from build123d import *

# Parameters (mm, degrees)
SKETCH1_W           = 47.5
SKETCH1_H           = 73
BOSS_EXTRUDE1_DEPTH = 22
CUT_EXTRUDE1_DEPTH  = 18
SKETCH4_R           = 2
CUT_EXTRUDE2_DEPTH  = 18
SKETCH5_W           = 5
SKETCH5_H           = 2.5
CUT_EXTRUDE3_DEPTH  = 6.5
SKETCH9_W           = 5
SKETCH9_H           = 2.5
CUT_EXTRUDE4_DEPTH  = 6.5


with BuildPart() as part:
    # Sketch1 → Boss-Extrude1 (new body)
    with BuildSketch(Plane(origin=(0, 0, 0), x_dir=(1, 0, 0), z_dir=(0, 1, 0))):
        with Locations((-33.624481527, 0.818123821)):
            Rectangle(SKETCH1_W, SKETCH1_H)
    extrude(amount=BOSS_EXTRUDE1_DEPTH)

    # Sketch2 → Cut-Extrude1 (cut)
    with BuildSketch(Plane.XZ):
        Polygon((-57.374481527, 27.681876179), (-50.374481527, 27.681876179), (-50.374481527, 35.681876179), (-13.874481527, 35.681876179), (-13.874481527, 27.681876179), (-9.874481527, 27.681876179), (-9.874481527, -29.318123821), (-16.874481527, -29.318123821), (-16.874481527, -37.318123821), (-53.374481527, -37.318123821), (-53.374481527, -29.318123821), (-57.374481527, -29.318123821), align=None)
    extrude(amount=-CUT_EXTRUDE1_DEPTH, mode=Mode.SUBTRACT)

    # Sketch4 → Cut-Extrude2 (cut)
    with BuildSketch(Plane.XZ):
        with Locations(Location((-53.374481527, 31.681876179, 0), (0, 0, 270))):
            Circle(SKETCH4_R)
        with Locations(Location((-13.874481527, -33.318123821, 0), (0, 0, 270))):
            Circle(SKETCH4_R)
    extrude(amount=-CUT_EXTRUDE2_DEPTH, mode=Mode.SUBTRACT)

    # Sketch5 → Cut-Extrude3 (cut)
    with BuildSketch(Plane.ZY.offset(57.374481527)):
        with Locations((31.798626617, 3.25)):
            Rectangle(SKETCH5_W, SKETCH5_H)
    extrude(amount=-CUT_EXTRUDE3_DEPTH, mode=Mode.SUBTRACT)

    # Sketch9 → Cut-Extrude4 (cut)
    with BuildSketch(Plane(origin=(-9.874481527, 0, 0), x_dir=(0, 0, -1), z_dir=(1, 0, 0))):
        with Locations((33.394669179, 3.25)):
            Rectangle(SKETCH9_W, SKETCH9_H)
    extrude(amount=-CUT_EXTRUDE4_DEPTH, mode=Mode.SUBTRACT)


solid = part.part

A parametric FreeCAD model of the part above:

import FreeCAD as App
import Part
import Sketcher
from FreeCAD import Vector
Q = App.Units.Quantity

doc = App.newDocument("Part")
body = doc.addObject("PartDesign::Body", "Body")

sketch1 = body.newObject("Sketcher::SketchObject", "Sketch")
sketch1.AttachmentSupport = (doc.getObject("XZ_Plane"), [""])
sketch1.MapMode = "FlatFace"
sketch1.addGeometry(Part.LineSegment(Vector(-57, -37, 0), Vector(-57, 36, 0)), False)
sketch1.addGeometry(Part.LineSegment(Vector(-57, 36, 0), Vector(-10, 36, 0)), False)
sketch1.addGeometry(Part.LineSegment(Vector(-10, 36, 0), Vector(-10, -37, 0)), False)
sketch1.addGeometry(Part.LineSegment(Vector(-10, -37, 0), Vector(-57, -37, 0)), False)
sketch1.addConstraint(Sketcher.Constraint("Coincident", 0, 2, 1, 1))
sketch1.addConstraint(Sketcher.Constraint("Coincident", 1, 2, 2, 1))
sketch1.addConstraint(Sketcher.Constraint("Coincident", 2, 2, 3, 1))
sketch1.addConstraint(Sketcher.Constraint("Coincident", 3, 2, 0, 1))
sketch1.addConstraint(Sketcher.Constraint("Vertical", 0))
sketch1.addConstraint(Sketcher.Constraint("Horizontal", 1))
sketch1.addConstraint(Sketcher.Constraint("Vertical", 2))
sketch1.addConstraint(Sketcher.Constraint("Horizontal", 3))
sketch1.addConstraint(Sketcher.Constraint("DistanceY", 0, 1, 0, 2, Q("73 mm")))
sketch1.addConstraint(Sketcher.Constraint("DistanceX", 1, 1, 1, 2, Q("47.5 mm")))
sketch1.addConstraint(Sketcher.Constraint("DistanceX", 0, 2, -1, 1, Q("57.374482 mm")))
sketch1.addConstraint(Sketcher.Constraint("DistanceY", -1, 1, 0, 2, Q("35.681876 mm")))
pad1 = body.newObject("PartDesign::Pad", "Pad")
pad1.Profile = sketch1
pad1.Length = 22
pad1.Reversed = True

sketch2 = body.newObject("Sketcher::SketchObject", "Sketch001")
sketch2.AttachmentSupport = (doc.getObject("XZ_Plane"), [""])
sketch2.MapMode = "FlatFace"
sketch2.addGeometry(Part.LineSegment(Vector(-50.4, 27.7, 0), Vector(-57.4, 27.7, 0)), False)
sketch2.addGeometry(Part.LineSegment(Vector(-57.4, 27.7, 0), Vector(-57.4, -29.3, 0)), False)
sketch2.addGeometry(Part.LineSegment(Vector(-57.4, -29.3, 0), Vector(-53.4, -29.3, 0)), False)
sketch2.addGeometry(Part.LineSegment(Vector(-53.4, -29.3, 0), Vector(-53.4, -37.3, 0)), False)
sketch2.addGeometry(Part.LineSegment(Vector(-53.4, -37.3, 0), Vector(-16.9, -37.3, 0)), False)
sketch2.addGeometry(Part.LineSegment(Vector(-16.9, -37.3, 0), Vector(-16.9, -29.3, 0)), False)
sketch2.addGeometry(Part.LineSegment(Vector(-16.9, -29.3, 0), Vector(-9.9, -29.3, 0)), False)
sketch2.addGeometry(Part.LineSegment(Vector(-9.9, -29.3, 0), Vector(-9.9, 27.7, 0)), False)
sketch2.addGeometry(Part.LineSegment(Vector(-9.9, 27.7, 0), Vector(-13.9, 27.7, 0)), False)
sketch2.addGeometry(Part.LineSegment(Vector(-13.9, 27.7, 0), Vector(-13.9, 35.7, 0)), False)
sketch2.addGeometry(Part.LineSegment(Vector(-13.9, 35.7, 0), Vector(-50.4, 35.7, 0)), False)
sketch2.addGeometry(Part.LineSegment(Vector(-50.4, 35.7, 0), Vector(-50.4, 27.7, 0)), False)
sketch2.addConstraint(Sketcher.Constraint("Coincident", 0, 2, 1, 1))
sketch2.addConstraint(Sketcher.Constraint("Coincident", 1, 2, 2, 1))
sketch2.addConstraint(Sketcher.Constraint("Coincident", 2, 2, 3, 1))
sketch2.addConstraint(Sketcher.Constraint("Coincident", 3, 2, 4, 1))
sketch2.addConstraint(Sketcher.Constraint("Coincident", 4, 2, 5, 1))
sketch2.addConstraint(Sketcher.Constraint("Coincident", 5, 2, 6, 1))
sketch2.addConstraint(Sketcher.Constraint("Coincident", 6, 2, 7, 1))
sketch2.addConstraint(Sketcher.Constraint("Coincident", 7, 2, 8, 1))
sketch2.addConstraint(Sketcher.Constraint("Coincident", 8, 2, 9, 1))
sketch2.addConstraint(Sketcher.Constraint("Coincident", 9, 2, 10, 1))
sketch2.addConstraint(Sketcher.Constraint("Coincident", 10, 2, 11, 1))
sketch2.addConstraint(Sketcher.Constraint("Coincident", 11, 2, 0, 1))
sketch2.addConstraint(Sketcher.Constraint("Horizontal", 0))
sketch2.addConstraint(Sketcher.Constraint("Vertical", 1))
sketch2.addConstraint(Sketcher.Constraint("Horizontal", 2))
sketch2.addConstraint(Sketcher.Constraint("Vertical", 3))
sketch2.addConstraint(Sketcher.Constraint("Horizontal", 4))
sketch2.addConstraint(Sketcher.Constraint("Vertical", 5))
sketch2.addConstraint(Sketcher.Constraint("Horizontal", 6))
sketch2.addConstraint(Sketcher.Constraint("Vertical", 7))
sketch2.addConstraint(Sketcher.Constraint("Horizontal", 8))
sketch2.addConstraint(Sketcher.Constraint("Vertical", 9))
sketch2.addConstraint(Sketcher.Constraint("Horizontal", 10))
sketch2.addConstraint(Sketcher.Constraint("Vertical", 11))
sketch2.addConstraint(Sketcher.Constraint("Horizontal", 2, 2, 5, 2))
sketch2.addConstraint(Sketcher.Constraint("Horizontal", 0, 2, 7, 2))
sketch2.addConstraint(Sketcher.Constraint("Equal", 0, 6))
sketch2.addConstraint(Sketcher.Constraint("Equal", 2, 8))
sketch2.addConstraint(Sketcher.Constraint("Equal", 5, 9))
sketch2.addConstraint(Sketcher.Constraint("DistanceX", 0, 2, 0, 1, Q("7 mm")))
sketch2.addConstraint(Sketcher.Constraint("DistanceX", 2, 1, 2, 2, Q("4 mm")))
sketch2.addConstraint(Sketcher.Constraint("DistanceY", 1, 2, 1, 1, Q("57 mm")))
sketch2.addConstraint(Sketcher.Constraint("DistanceY", 3, 2, 3, 1, Q("8 mm")))
sketch2.addConstraint(Sketcher.Constraint("DistanceX", 4, 1, 4, 2, Q("36.5 mm")))
sketch2.addConstraint(Sketcher.Constraint("DistanceX", 0, 2, -1, 1, Q("57.374482 mm")))
sketch2.addConstraint(Sketcher.Constraint("DistanceY", -1, 1, 0, 2, Q("27.681876 mm")))
pocket1 = body.newObject("PartDesign::Pocket", "Pocket")
pocket1.Profile = sketch2
pocket1.Length = 18

sketch3 = body.newObject("Sketcher::SketchObject", "Sketch002")
sketch3.AttachmentSupport = (doc.getObject("XZ_Plane"), [""])
sketch3.MapMode = "FlatFace"
sketch3.addGeometry(Part.Circle(Vector(-53.4, 31.7, 0), Vector(0, 0, 1), 2), False)
sketch3.addGeometry(Part.Circle(Vector(-13.9, -33.3, 0), Vector(0, 0, 1), 2), False)
sketch3.addConstraint(Sketcher.Constraint("Equal", 0, 1))
sketch3.addConstraint(Sketcher.Constraint("Diameter", 0, Q("4 mm")))
sketch3.addConstraint(Sketcher.Constraint("DistanceY", 1, 3, 0, 3, Q("65 mm")))
sketch3.addConstraint(Sketcher.Constraint("DistanceX", 0, 3, 1, 3, Q("39.5 mm")))
sketch3.addConstraint(Sketcher.Constraint("DistanceX", 0, 3, -1, 1, Q("53.374482 mm")))
sketch3.addConstraint(Sketcher.Constraint("DistanceY", -1, 1, 0, 3, Q("31.681876 mm")))
pocket2 = body.newObject("PartDesign::Pocket", "Pocket001")
pocket2.Profile = sketch3
pocket2.Length = 18

sketch4 = body.newObject("Sketcher::SketchObject", "Sketch003")
sketch4.AttachmentSupport = (doc.getObject("YZ_Plane"), [""])
sketch4.MapMode = "FlatFace"
sketch4.AttachmentOffset = App.Placement(Vector(0, 0, -57.374482), App.Rotation())
sketch4.addGeometry(Part.LineSegment(Vector(4.5, 29.3, 0), Vector(2, 29.3, 0)), False)
sketch4.addGeometry(Part.LineSegment(Vector(2, 29.3, 0), Vector(2, 34.3, 0)), False)
sketch4.addGeometry(Part.LineSegment(Vector(2, 34.3, 0), Vector(4.5, 34.3, 0)), False)
sketch4.addGeometry(Part.LineSegment(Vector(4.5, 34.3, 0), Vector(4.5, 29.3, 0)), False)
sketch4.addConstraint(Sketcher.Constraint("Coincident", 0, 2, 1, 1))
sketch4.addConstraint(Sketcher.Constraint("Coincident", 1, 2, 2, 1))
sketch4.addConstraint(Sketcher.Constraint("Coincident", 2, 2, 3, 1))
sketch4.addConstraint(Sketcher.Constraint("Coincident", 3, 2, 0, 1))
sketch4.addConstraint(Sketcher.Constraint("Horizontal", 0))
sketch4.addConstraint(Sketcher.Constraint("Vertical", 1))
sketch4.addConstraint(Sketcher.Constraint("Horizontal", 2))
sketch4.addConstraint(Sketcher.Constraint("Vertical", 3))
sketch4.addConstraint(Sketcher.Constraint("DistanceY", 1, 1, 1, 2, Q("5 mm")))
sketch4.addConstraint(Sketcher.Constraint("DistanceX", 0, 2, 0, 1, Q("2.5 mm")))
sketch4.addConstraint(Sketcher.Constraint("DistanceX", -1, 1, 0, 2, Q("2 mm")))
sketch4.addConstraint(Sketcher.Constraint("DistanceY", -1, 1, 0, 2, Q("29.298627 mm")))
pocket3 = body.newObject("PartDesign::Pocket", "Pocket002")
pocket3.Profile = sketch4
pocket3.Length = 6.5
pocket3.Reversed = True

sketch5 = body.newObject("Sketcher::SketchObject", "Sketch004")
sketch5.AttachmentSupport = (doc.getObject("YZ_Plane"), [""])
sketch5.MapMode = "FlatFace"
sketch5.AttachmentOffset = App.Placement(Vector(0, 0, -9.874482), App.Rotation())
sketch5.addGeometry(Part.LineSegment(Vector(4.5, -30.9, 0), Vector(2, -30.9, 0)), False)
sketch5.addGeometry(Part.LineSegment(Vector(2, -30.9, 0), Vector(2, -35.9, 0)), False)
sketch5.addGeometry(Part.LineSegment(Vector(2, -35.9, 0), Vector(4.5, -35.9, 0)), False)
sketch5.addGeometry(Part.LineSegment(Vector(4.5, -35.9, 0), Vector(4.5, -30.9, 0)), False)
sketch5.addConstraint(Sketcher.Constraint("Coincident", 0, 2, 1, 1))
sketch5.addConstraint(Sketcher.Constraint("Coincident", 1, 2, 2, 1))
sketch5.addConstraint(Sketcher.Constraint("Coincident", 2, 2, 3, 1))
sketch5.addConstraint(Sketcher.Constraint("Coincident", 3, 2, 0, 1))
sketch5.addConstraint(Sketcher.Constraint("Horizontal", 0))
sketch5.addConstraint(Sketcher.Constraint("Vertical", 1))
sketch5.addConstraint(Sketcher.Constraint("Horizontal", 2))
sketch5.addConstraint(Sketcher.Constraint("Vertical", 3))
sketch5.addConstraint(Sketcher.Constraint("DistanceY", 1, 2, 1, 1, Q("5 mm")))
sketch5.addConstraint(Sketcher.Constraint("DistanceX", 0, 2, 0, 1, Q("2.5 mm")))
sketch5.addConstraint(Sketcher.Constraint("DistanceX", -1, 1, 0, 2, Q("2 mm")))
sketch5.addConstraint(Sketcher.Constraint("DistanceY", 0, 2, -1, 1, Q("30.894669 mm")))
pocket4 = body.newObject("PartDesign::Pocket", "Pocket003")
pocket4.Profile = sketch5
pocket4.Length = 6.5

doc.recompute()
